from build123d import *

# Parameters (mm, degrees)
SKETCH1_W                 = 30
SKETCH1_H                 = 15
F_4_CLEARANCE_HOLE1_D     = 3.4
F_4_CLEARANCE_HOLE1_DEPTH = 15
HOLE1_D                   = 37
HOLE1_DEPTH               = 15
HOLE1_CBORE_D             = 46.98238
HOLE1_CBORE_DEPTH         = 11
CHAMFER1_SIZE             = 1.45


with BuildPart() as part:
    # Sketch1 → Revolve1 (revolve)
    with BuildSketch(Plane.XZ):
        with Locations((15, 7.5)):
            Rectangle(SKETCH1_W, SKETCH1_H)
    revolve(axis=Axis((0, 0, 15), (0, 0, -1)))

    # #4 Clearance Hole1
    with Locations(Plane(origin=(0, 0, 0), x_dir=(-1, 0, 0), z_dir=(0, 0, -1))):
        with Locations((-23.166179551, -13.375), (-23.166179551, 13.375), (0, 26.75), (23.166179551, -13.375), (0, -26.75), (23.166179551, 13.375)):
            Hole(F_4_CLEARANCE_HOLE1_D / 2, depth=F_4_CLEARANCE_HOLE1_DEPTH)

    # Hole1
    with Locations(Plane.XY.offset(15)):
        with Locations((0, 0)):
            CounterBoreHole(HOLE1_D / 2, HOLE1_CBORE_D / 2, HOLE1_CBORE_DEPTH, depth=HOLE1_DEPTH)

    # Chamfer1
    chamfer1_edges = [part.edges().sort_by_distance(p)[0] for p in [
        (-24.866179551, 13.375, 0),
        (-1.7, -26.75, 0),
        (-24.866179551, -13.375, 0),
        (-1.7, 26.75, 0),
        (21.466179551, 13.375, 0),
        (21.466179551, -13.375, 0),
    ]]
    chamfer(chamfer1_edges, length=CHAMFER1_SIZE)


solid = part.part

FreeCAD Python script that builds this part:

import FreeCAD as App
import Part
import Sketcher


def edges_at(feature, points):
    """Names of the edges that pass closest to the given points."""
    edges = feature.Shape.Edges
    near = lambda p: min(range(len(edges)), key=lambda i: edges[i].distToShape(Part.Vertex(*p))[0])
    return sorted({f"Edge{near(p) + 1}" for p in points})


def add_polygon(sketch, points):
    """Adds a closed chain of lines whose ends are joined by coincident constraints."""
    first, n = sketch.GeometryCount, len(points)
    for a, b in zip(points, points[1:] + points[:1]):
        sketch.addGeometry(Part.LineSegment(App.Vector(*a, 0), App.Vector(*b, 0)), False)
    for i in range(n):
        sketch.addConstraint(Sketcher.Constraint("Coincident", first + i, 2, first + (i + 1) % n, 1))

doc = App.newDocument("Part")
body = doc.addObject("PartDesign::Body", "Body")

# Sketch on XZ plane
sketch1 = body.newObject("Sketcher::SketchObject", "Sketch")
sketch1.AttachmentSupport = (doc.getObject("XZ_Plane"), [""])
sketch1.MapMode = "FlatFace"
add_polygon(sketch1, [(0, 15), (0, 0), (30, 0), (30, 15)])  # lines 0-3
sketch1.addConstraint([
    Sketcher.Constraint("Vertical", 0),
    Sketcher.Constraint("Horizontal", 1),
    Sketcher.Constraint("Vertical", 2),
    Sketcher.Constraint("Horizontal", 3),
    Sketcher.Constraint("Coincident", 0, 2, -1, 1),
    Sketcher.Constraint("DistanceX", 1, 1, 1, 2, 30.0),
    Sketcher.Constraint("DistanceY", 0, 2, 0, 1, 15.0),
])
revolution = body.newObject("PartDesign::Revolution", "Revolution")
revolution.Profile = sketch1
revolution.ReferenceAxis = (sketch1, ["V_Axis"])
revolution.Angle = 360

# Sketch on XY plane
sketch2 = body.newObject("Sketcher::SketchObject", "Sketch001")
sketch2.AttachmentSupport = (doc.getObject("XY_Plane"), [""])
sketch2.MapMode = "FlatFace"
sketch2.addGeometry([
    Part.Circle(App.Vector(23.2, -13.4, 0), App.Vector(0, 0, 1), 1.7),  # 0
    Part.Circle(App.Vector(23.2, 13.4, 0), App.Vector(0, 0, 1), 1.7),  # 1
    Part.Circle(App.Vector(0, 26.8, 0), App.Vector(0, 0, 1), 1.7),  # 2
    Part.Circle(App.Vector(-23.2, -13.4, 0), App.Vector(0, 0, 1), 1.7),  # 3
    Part.Circle(App.Vector(0, -26.8, 0), App.Vector(0, 0, 1), 1.7),  # 4
    Part.Circle(App.Vector(-23.2, 13.4, 0), App.Vector(0, 0, 1), 1.7),  # 5
], False)
sketch2.addConstraint([
    Sketcher.Constraint("Equal", 0, 1),
    Sketcher.Constraint("Equal", 1, 2),
    Sketcher.Constraint("Equal", 2, 3),
    Sketcher.Constraint("Equal", 3, 4),
    Sketcher.Constraint("Equal", 4, 5),
    Sketcher.Constraint("Symmetric", 1, 3, 3, 3, -1, 1),
    Sketcher.Constraint("Symmetric", 2, 3, 4, 3, -1, 1),
    Sketcher.Constraint("Symmetric", 0, 3, 5, 3, -1, 1),
    Sketcher.Constraint("Symmetric", 0, 3, 3, 3, -2),
    Sketcher.Constraint("PointOnObject", 2, 3, -2),
    Sketcher.Constraint("Diameter", 0, 3.4),
    Sketcher.Constraint("DistanceY", 4, 3, 2, 3, 53.5),
    Sketcher.Constraint("DistanceY", 0, 3, 1, 3, 26.75),
    Sketcher.Constraint("DistanceX", -1, 1, 0, 3, 23.16618),
])
doc.recompute()
hole = body.newObject("PartDesign::Hole", "Hole")
hole.Profile = sketch2
hole.ThreadType = "None"
hole.Diameter = 3.4
hole.DepthType = "Dimension"
hole.Depth = 15
hole.DrillPoint = "Flat"
hole.Reversed = True

# Sketch on XY plane
sketch3 = body.newObject("Sketcher::SketchObject", "Sketch002")
sketch3.AttachmentSupport = (doc.getObject("XY_Plane"), [""])
sketch3.MapMode = "FlatFace"
sketch3.AttachmentOffset = App.Placement(App.Vector(0, 0, 15), App.Rotation())
sketch3.addGeometry(Part.Circle(App.Vector(0, 0, 0), App.Vector(0, 0, 1), 18), False)
sketch3.addConstraint([
    Sketcher.Constraint("Coincident", 0, 3, -1, 1),
    Sketcher.Constraint("Diameter", 0, 37.0),
])
doc.recompute()
hole2 = body.newObject("PartDesign::Hole", "Hole001")
hole2.Profile = sketch3
hole2.ThreadType = "None"
hole2.Diameter = 37
hole2.DepthType = "Dimension"
hole2.Depth = 15
hole2.DrillPoint = "Flat"
hole2.HoleCutType = "Counterbore"
hole2.HoleCutDiameter = 46.98238
hole2.HoleCutDepth = 11
doc.recompute()

chamfer = body.newObject("PartDesign::Chamfer", "Chamfer")
chamfer.Base = (hole2, edges_at(hole2, [
    (-24.866, 13.375, 0),
    (-1.7, -26.75, 0),
    (-24.866, -13.375, 0),
    (-1.7, 26.75, 0),
    (21.466, 13.375, 0),
    (21.466, -13.375, 0),
]))
chamfer.Size = 1.45

doc.recompute()
